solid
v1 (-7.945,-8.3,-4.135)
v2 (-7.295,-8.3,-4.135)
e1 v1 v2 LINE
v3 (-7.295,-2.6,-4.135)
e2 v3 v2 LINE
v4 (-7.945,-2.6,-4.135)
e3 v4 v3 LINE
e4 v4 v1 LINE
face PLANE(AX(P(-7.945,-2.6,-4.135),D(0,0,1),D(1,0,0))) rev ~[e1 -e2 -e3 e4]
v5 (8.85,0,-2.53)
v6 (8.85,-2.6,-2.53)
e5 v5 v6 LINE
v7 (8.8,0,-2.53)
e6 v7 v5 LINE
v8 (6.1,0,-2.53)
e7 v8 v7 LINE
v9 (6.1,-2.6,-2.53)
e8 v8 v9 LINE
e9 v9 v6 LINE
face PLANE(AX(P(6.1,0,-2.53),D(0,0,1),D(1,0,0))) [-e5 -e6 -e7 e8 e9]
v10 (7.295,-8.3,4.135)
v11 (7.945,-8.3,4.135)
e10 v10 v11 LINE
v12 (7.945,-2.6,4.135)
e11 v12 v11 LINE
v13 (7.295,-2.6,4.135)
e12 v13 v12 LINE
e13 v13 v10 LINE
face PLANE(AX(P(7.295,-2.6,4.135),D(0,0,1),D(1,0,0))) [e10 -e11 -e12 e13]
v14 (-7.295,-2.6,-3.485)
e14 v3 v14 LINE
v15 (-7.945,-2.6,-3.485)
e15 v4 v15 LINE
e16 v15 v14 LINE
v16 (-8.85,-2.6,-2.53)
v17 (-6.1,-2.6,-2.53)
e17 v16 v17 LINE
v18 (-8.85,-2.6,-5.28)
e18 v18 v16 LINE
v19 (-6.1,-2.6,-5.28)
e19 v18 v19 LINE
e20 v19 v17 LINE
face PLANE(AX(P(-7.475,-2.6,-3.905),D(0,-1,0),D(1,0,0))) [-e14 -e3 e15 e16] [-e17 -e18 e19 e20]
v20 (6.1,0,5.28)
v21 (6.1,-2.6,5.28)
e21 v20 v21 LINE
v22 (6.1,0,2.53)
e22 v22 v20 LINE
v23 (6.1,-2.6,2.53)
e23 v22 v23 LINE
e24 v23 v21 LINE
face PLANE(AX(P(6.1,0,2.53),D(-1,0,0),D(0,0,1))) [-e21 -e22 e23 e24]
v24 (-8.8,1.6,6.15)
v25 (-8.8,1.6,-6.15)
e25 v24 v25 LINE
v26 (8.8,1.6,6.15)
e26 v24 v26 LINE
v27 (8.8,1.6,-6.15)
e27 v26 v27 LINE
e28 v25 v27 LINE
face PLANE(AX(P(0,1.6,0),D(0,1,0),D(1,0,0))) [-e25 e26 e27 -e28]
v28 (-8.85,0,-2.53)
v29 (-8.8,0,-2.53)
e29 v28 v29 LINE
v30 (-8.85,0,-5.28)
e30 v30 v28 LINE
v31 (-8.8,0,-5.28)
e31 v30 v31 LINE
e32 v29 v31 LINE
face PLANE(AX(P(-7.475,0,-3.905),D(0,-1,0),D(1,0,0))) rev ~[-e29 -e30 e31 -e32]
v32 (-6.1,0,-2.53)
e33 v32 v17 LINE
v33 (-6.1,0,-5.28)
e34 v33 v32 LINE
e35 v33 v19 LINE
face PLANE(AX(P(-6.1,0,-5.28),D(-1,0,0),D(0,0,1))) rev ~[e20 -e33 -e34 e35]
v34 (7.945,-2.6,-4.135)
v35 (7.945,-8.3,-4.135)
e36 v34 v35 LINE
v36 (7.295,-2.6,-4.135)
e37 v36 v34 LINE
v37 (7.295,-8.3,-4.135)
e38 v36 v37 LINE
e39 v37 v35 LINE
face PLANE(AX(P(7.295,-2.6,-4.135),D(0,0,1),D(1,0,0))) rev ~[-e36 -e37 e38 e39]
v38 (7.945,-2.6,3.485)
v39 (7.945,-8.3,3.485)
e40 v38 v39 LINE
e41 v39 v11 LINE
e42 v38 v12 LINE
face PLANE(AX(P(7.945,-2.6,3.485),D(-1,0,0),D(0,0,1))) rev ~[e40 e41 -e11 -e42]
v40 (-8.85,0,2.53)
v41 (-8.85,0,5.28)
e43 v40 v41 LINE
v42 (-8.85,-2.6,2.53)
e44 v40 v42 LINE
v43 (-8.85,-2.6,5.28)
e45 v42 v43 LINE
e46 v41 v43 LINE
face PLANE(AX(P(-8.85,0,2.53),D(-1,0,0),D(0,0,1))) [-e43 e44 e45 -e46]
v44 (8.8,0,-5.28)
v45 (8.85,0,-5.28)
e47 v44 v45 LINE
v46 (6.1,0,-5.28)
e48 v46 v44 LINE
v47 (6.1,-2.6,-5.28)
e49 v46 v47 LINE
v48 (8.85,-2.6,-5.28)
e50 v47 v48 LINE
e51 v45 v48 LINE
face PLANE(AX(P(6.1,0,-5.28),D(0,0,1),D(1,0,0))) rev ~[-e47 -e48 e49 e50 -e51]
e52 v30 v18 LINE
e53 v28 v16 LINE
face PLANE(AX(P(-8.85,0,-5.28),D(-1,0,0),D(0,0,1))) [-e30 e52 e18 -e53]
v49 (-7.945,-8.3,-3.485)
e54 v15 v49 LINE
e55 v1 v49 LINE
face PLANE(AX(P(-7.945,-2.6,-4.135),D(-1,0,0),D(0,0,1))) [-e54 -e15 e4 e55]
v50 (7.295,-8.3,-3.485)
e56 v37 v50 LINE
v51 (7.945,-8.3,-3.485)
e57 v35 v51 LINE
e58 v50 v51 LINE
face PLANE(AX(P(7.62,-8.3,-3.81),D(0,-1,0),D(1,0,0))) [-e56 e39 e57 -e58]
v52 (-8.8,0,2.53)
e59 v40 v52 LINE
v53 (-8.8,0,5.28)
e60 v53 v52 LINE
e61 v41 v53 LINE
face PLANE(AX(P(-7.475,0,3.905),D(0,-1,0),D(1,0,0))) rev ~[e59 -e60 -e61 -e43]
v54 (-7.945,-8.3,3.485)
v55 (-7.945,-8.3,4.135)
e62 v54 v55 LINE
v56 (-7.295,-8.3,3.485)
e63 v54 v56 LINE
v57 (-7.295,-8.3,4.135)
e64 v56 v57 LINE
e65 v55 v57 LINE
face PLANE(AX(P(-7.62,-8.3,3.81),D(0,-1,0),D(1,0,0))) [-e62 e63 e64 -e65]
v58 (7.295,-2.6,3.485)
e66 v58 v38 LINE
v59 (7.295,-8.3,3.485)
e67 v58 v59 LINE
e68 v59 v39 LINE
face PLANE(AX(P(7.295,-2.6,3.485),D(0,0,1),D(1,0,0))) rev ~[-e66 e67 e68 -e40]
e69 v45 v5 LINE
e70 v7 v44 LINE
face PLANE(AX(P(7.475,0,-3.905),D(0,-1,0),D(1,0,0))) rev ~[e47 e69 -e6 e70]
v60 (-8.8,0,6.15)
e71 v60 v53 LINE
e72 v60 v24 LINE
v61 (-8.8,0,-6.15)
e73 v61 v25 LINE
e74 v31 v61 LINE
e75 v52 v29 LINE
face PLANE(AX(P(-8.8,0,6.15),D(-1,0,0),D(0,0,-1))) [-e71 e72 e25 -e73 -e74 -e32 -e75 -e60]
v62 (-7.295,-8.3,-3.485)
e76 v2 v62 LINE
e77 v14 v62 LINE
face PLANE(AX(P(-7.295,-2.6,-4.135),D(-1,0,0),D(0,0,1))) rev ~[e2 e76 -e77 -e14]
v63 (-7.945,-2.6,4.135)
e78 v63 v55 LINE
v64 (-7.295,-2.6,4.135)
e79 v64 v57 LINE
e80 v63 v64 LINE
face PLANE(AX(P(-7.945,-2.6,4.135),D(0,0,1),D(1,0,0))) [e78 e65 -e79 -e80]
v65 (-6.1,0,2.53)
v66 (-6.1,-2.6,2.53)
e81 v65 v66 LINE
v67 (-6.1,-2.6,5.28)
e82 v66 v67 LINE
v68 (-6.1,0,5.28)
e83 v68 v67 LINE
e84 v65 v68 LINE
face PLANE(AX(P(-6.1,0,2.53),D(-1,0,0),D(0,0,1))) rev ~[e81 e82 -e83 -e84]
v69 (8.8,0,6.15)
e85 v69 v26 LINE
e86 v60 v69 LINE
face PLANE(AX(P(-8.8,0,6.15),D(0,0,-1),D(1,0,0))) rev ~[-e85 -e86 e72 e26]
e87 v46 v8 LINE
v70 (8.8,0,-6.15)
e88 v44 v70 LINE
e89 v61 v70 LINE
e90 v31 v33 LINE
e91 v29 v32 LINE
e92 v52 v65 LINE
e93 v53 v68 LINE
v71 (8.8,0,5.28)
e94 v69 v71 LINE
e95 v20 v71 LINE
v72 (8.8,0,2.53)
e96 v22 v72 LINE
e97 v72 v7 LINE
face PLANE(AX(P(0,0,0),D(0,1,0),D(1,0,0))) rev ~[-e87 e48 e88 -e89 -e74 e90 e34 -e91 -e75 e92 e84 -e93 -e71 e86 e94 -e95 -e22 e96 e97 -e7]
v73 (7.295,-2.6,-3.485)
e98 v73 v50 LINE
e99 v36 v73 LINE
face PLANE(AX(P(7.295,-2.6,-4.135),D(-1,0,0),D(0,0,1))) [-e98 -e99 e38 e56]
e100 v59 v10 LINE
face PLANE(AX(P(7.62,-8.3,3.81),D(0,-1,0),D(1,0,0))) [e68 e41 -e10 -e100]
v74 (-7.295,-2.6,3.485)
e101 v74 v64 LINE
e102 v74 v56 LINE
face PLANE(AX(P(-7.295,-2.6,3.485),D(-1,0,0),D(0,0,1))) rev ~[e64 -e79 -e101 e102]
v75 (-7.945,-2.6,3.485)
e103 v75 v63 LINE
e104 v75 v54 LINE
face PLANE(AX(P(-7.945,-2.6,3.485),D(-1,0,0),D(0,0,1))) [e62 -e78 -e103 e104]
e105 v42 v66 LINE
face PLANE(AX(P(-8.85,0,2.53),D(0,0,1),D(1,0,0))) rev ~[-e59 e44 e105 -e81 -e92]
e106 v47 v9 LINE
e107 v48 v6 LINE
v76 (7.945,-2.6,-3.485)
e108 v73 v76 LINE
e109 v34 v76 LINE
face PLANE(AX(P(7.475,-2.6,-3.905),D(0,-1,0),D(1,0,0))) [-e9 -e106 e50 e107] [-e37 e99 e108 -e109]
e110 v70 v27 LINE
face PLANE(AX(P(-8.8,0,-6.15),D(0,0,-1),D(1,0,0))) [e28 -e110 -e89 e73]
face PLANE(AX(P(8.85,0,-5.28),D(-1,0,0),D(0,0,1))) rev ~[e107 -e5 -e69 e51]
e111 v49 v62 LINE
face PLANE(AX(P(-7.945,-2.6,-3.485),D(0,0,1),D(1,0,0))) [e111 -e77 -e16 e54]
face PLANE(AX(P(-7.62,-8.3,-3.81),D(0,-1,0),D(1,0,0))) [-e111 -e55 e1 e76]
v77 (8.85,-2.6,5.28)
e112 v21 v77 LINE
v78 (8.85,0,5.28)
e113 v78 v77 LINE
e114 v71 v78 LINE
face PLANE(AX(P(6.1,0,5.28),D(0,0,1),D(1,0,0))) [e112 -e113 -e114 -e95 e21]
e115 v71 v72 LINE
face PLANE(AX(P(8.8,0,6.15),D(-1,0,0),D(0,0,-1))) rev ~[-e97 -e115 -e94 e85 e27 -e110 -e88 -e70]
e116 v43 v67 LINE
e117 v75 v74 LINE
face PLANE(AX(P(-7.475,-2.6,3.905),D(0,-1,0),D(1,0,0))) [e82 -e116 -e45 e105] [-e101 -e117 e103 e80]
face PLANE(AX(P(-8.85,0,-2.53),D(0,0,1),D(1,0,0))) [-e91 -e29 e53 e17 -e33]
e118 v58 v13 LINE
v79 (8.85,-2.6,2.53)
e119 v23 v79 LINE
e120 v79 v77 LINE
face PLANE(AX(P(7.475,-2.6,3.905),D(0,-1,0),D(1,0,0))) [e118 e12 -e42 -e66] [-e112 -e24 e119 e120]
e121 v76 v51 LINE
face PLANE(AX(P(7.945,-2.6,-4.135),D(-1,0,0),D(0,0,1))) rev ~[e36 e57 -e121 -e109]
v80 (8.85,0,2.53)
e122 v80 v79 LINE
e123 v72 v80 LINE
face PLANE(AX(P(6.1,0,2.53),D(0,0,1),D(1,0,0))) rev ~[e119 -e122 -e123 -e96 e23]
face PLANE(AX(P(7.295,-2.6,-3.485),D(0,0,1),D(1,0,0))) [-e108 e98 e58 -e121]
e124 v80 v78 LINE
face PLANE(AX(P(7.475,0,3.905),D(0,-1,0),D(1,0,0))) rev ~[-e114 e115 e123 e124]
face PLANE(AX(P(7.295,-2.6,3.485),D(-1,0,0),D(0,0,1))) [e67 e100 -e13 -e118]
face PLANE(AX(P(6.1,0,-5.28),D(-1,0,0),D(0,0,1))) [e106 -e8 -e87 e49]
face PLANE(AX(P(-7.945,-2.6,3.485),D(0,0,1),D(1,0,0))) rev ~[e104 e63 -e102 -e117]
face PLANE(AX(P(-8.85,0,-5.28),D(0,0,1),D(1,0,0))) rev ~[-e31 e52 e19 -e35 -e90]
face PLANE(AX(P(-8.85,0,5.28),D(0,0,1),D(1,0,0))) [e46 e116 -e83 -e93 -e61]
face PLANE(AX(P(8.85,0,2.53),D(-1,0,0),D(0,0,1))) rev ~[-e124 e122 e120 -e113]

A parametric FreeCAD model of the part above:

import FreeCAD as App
import Part
import Sketcher

V = App.Vector
Q = App.Units.Quantity


def add_polygon(sketch, points):
    """Adds a closed chain of lines whose ends are joined by coincident constraints."""
    first, n = sketch.GeometryCount, len(points)
    for a, b in zip(points, points[1:] + points[:1]):
        sketch.addGeometry(Part.LineSegment(App.Vector(*a, 0), App.Vector(*b, 0)), False)
    for i in range(n):
        sketch.addConstraint(Sketcher.Constraint("Coincident", first + i, 2, first + (i + 1) % n, 1))

doc = App.newDocument("Part")
body = doc.addObject("PartDesign::Body", "Body")

# Sketch on XZ plane
sketch1 = body.newObject("Sketcher::SketchObject", "Sketch")
sketch1.AttachmentSupport = (doc.getObject("XZ_Plane"), [""])
sketch1.MapMode = "FlatFace"
add_polygon(sketch1, [(-8.8, -6.15), (-8.8, 6.15), (8.8, 6.15), (8.8, -6.15)])  # lines 0-3
sketch1.addConstraint([
    Sketcher.Constraint("Vertical", 0),
    Sketcher.Constraint("Horizontal", 1),
    Sketcher.Constraint("Vertical", 2),
    Sketcher.Constraint("Horizontal", 3),
    Sketcher.Constraint("Symmetric", 0, 2, 2, 2, -1, 1),
    Sketcher.Constraint("DistanceX", 1, 1, 1, 2, Q("17.6 mm")),
    Sketcher.Constraint("DistanceY", 0, 1, 0, 2, Q("12.3 mm")),
])
pad1 = body.newObject("PartDesign::Pad", "Pad")
pad1.Profile = sketch1
pad1.Length = 1.6
pad1.Reversed = True

# Sketch on XZ plane
sketch2 = body.newObject("Sketcher::SketchObject", "Sketch001")
sketch2.AttachmentSupport = (doc.getObject("XZ_Plane"), [""])
sketch2.MapMode = "FlatFace"
add_polygon(sketch2, [(-8.85, 5.28), (-8.85, 2.53), (-6.1, 2.53), (-6.1, 5.28)])  # lines 0-3
add_polygon(sketch2, [(-8.85, -2.53), (-8.85, -5.28), (-6.1, -5.28), (-6.1, -2.53)])  # lines 4-7
add_polygon(sketch2, [(6.1, -2.53), (6.1, -5.28), (8.85, -5.28), (8.85, -2.53)])  # lines 8-11
add_polygon(sketch2, [(6.1, 5.28), (6.1, 2.53), (8.85, 2.53), (8.85, 5.28)])  # lines 12-15
sketch2.addConstraint([
    Sketcher.Constraint("Vertical", 0),
    Sketcher.Constraint("Horizontal", 1),
    Sketcher.Constraint("Vertical", 2),
    Sketcher.Constraint("Horizontal", 3),
    Sketcher.Constraint("Vertical", 4),
    Sketcher.Constraint("Horizontal", 5),
    Sketcher.Constraint("Vertical", 6),
    Sketcher.Constraint("Horizontal", 7),
    Sketcher.Constraint("Vertical", 8),
    Sketcher.Constraint("Horizontal", 9),
    Sketcher.Constraint("Vertical", 10),
    Sketcher.Constraint("Horizontal", 11),
    Sketcher.Constraint("Vertical", 12),
    Sketcher.Constraint("Horizontal", 13),
    Sketcher.Constraint("Vertical", 14),
    Sketcher.Constraint("Horizontal", 15),
    Sketcher.Constraint("Symmetric", 2, 2, 8, 2, -1, 1),
    Sketcher.Constraint("Symmetric", 0, 2, 10, 2, -1, 1),
    Sketcher.Constraint("Symmetric", 6, 2, 12, 2, -1, 1),
    Sketcher.Constraint("Symmetric", 4, 2, 14, 2, -1, 1),
    Sketcher.Constraint("Symmetric", 5, 2, 8, 2, -2),
    Sketcher.Constraint("Symmetric", 7, 2, 10, 2, -2),
    Sketcher.Constraint("Equal", 15, 0),
    Sketcher.Constraint("DistanceX", 1, 1, 1, 2, Q("2.75 mm")),
    Sketcher.Constraint("DistanceX", 1, 2, -1, 1, Q("6.1 mm")),
    Sketcher.Constraint("DistanceY", -1, 1, 0, 2, Q("2.53 mm")),
])
pad2 = body.newObject("PartDesign::Pad", "Pad001")
pad2.Profile = sketch2
pad2.Length = 2.6

# Sketch on XZ plane
sketch3 = body.newObject("Sketcher::SketchObject", "Sketch002")
sketch3.AttachmentSupport = (doc.getObject("XZ_Plane"), [""])
sketch3.MapMode = "FlatFace"
sketch3.AttachmentOffset = App.Placement(V(0, 0, 2.6), App.Rotation())
add_polygon(sketch3, [(7.295, -3.485), (7.295, -4.135), (7.945, -4.135), (7.945, -3.485)])  # lines 0-3
add_polygon(sketch3, [(7.295, 4.135), (7.295, 3.485), (7.945, 3.485), (7.945, 4.135)])  # lines 4-7
add_polygon(sketch3, [(-7.945, -3.485), (-7.945, -4.135), (-7.295, -4.135), (-7.295, -3.485)])  # lines 8-11
add_polygon(sketch3, [(-7.945, 4.135), (-7.945, 3.485), (-7.295, 3.485), (-7.295, 4.135)])  # lines 12-15
sketch3.addConstraint([
    Sketcher.Constraint("Vertical", 0),
    Sketcher.Constraint("Horizontal", 1),
    Sketcher.Constraint("Vertical", 2),
    Sketcher.Constraint("Horizontal", 3),
    Sketcher.Constraint("Vertical", 4),
    Sketcher.Constraint("Horizontal", 5),
    Sketcher.Constraint("Vertical", 6),
    Sketcher.Constraint("Horizontal", 7),
    Sketcher.Constraint("Vertical", 8),
    Sketcher.Constraint("Horizontal", 9),
    Sketcher.Constraint("Vertical", 10),
    Sketcher.Constraint("Horizontal", 11),
    Sketcher.Constraint("Vertical", 12),
    Sketcher.Constraint("Horizontal", 13),
    Sketcher.Constraint("Vertical", 14),
    Sketcher.Constraint("Horizontal", 15),
    Sketcher.Constraint("Symmetric", 6, 2, 8, 2, -1, 1),
    Sketcher.Constraint("Symmetric", 4, 2, 10, 2, -1, 1),
    Sketcher.Constraint("Symmetric", 2, 2, 12, 2, -1, 1),
    Sketcher.Constraint("Symmetric", 0, 2, 14, 2, -1, 1),
    Sketcher.Constraint("Symmetric", 1, 2, 8, 2, -2),
    Sketcher.Constraint("Symmetric", 3, 2, 10, 2, -2),
    Sketcher.Constraint("Equal", 15, 0),
    Sketcher.Constraint("DistanceX", 1, 1, 1, 2, Q("0.65 mm")),
    Sketcher.Constraint("DistanceY", 3, 2, 4, 2, Q("6.97 mm")),
    Sketcher.Constraint("DistanceX", 8, 2, 0, 2, Q("15.24 mm")),
])
pad3 = body.newObject("PartDesign::Pad", "Pad002")
pad3.Profile = sketch3
pad3.Length = 5.7

doc.recompute()
